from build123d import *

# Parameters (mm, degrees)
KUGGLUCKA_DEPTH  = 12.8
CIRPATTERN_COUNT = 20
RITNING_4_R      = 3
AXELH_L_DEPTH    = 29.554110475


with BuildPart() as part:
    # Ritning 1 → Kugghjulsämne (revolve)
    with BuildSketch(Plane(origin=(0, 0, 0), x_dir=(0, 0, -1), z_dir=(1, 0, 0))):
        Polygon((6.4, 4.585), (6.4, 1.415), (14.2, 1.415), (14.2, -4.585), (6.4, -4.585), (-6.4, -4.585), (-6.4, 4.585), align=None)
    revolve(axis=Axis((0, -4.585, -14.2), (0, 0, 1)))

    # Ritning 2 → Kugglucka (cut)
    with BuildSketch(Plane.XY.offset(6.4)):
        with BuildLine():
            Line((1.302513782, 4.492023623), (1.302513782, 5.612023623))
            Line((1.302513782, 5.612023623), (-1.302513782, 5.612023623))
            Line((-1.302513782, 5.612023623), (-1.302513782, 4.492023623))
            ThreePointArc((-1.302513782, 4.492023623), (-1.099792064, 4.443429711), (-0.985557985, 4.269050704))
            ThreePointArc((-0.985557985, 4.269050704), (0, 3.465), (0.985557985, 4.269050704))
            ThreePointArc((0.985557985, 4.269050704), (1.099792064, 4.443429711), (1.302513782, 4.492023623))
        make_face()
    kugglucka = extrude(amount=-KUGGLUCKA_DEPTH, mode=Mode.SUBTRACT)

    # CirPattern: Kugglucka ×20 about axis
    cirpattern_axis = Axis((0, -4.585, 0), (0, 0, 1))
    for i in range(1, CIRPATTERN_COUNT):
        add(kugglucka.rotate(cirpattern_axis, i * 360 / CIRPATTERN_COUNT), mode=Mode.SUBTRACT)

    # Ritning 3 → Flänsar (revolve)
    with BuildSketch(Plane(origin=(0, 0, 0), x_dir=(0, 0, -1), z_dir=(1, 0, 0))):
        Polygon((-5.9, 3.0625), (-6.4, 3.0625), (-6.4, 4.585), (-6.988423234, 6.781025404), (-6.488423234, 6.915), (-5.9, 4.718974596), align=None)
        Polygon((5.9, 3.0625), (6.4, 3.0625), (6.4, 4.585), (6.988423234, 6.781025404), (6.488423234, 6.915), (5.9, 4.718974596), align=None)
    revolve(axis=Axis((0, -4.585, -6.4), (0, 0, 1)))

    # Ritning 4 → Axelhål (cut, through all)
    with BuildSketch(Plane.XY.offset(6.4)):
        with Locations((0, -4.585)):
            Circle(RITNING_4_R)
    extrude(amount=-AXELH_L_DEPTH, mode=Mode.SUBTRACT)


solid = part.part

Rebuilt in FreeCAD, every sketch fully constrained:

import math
import FreeCAD as App
import Part
import Sketcher
Q = App.Units.Quantity


def add_polygon(sketch, points):
    """Adds a closed chain of lines whose ends are joined by coincident constraints."""
    first, n = sketch.GeometryCount, len(points)
    for a, b in zip(points, points[1:] + points[:1]):
        sketch.addGeometry(Part.LineSegment(App.Vector(*a, 0), App.Vector(*b, 0)), False)
    for i in range(n):
        sketch.addConstraint(Sketcher.Constraint("Coincident", first + i, 2, first + (i + 1) % n, 1))

doc = App.newDocument("Part")
body = doc.addObject("PartDesign::Body", "Body")

sketch1 = body.newObject("Sketcher::SketchObject", "Sketch")
sketch1.AttachmentSupport = (doc.getObject("YZ_Plane"), [""])
sketch1.MapMode = "FlatFace"
add_polygon(sketch1, [(1.4, -6.4), (4.6, -6.4), (4.6, 6.4), (-4.6, 6.4), (-4.6, -14.2), (1.4, -14.2)])
sketch1.addGeometry(Part.LineSegment(App.Vector(-4.6, -14.2, 0), App.Vector(-4.6, 6.4, 0)), True)
sketch1.addConstraint(Sketcher.Constraint("Horizontal", 0))
sketch1.addConstraint(Sketcher.Constraint("Vertical", 1))
sketch1.addConstraint(Sketcher.Constraint("Horizontal", 2))
sketch1.addConstraint(Sketcher.Constraint("Vertical", 3))
sketch1.addConstraint(Sketcher.Constraint("Horizontal", 4))
sketch1.addConstraint(Sketcher.Constraint("Vertical", 5))
sketch1.addConstraint(Sketcher.Constraint("Vertical", 6))
sketch1.addConstraint(Sketcher.Constraint("Coincident", 6, 1, 3, 2))
sketch1.addConstraint(Sketcher.Constraint("Symmetric", 0, 2, 2, 2, -1, 1))
sketch1.addConstraint(Sketcher.Constraint("Horizontal", 1, 2, 6, 2))
sketch1.addConstraint(Sketcher.Constraint("DistanceX", 4, 1, 4, 2, Q("6 mm")))
sketch1.addConstraint(Sketcher.Constraint("DistanceY", 1, 1, 1, 2, Q("12.8 mm")))
sketch1.addConstraint(Sketcher.Constraint("DistanceY", 3, 2, 3, 1, Q("20.6 mm")))
sketch1.addConstraint(Sketcher.Constraint("DistanceX", 0, 1, 0, 2, Q("3.17 mm")))
revolution = body.newObject("PartDesign::Revolution", "Revolution")
revolution.Profile = sketch1
revolution.ReferenceAxis = (sketch1, ["Axis0"])
revolution.Angle = 360

sketch2 = body.newObject("Sketcher::SketchObject", "Sketch001")
sketch2.AttachmentSupport = (doc.getObject("XY_Plane"), [""])
sketch2.MapMode = "FlatFace"
sketch2.AttachmentOffset = App.Placement(App.Vector(0, 0, 6.4), App.Rotation())
sketch2.addGeometry(Part.LineSegment(App.Vector(1.3, 4.49, 0), App.Vector(1.3, 5.61, 0)), False)
sketch2.addGeometry(Part.LineSegment(App.Vector(1.3, 5.61, 0), App.Vector(-1.3, 5.61, 0)), False)
sketch2.addGeometry(Part.LineSegment(App.Vector(-1.3, 5.61, 0), App.Vector(-1.3, 4.49, 0)), False)
sketch2.addGeometry(Part.ArcOfCircle(Part.Circle(App.Vector(-1.26, 4.21, 0), App.Vector(0, 0, 1), 0.28), math.radians(12), math.radians(98)), False)
sketch2.addGeometry(Part.ArcOfCircle(Part.Circle(App.Vector(0, 4.47, 0), App.Vector(0, 0, 1), 1.01), math.radians(-168), math.radians(-12)), False)
sketch2.addGeometry(Part.ArcOfCircle(Part.Circle(App.Vector(1.26, 4.21, 0), App.Vector(0, 0, 1), 0.28), math.radians(82), math.radians(168)), False)
sketch2.addConstraint(Sketcher.Constraint("Coincident", 0, 2, 1, 1))
sketch2.addConstraint(Sketcher.Constraint("Coincident", 1, 2, 2, 1))
sketch2.addConstraint(Sketcher.Constraint("Coincident", 2, 2, 3, 2))
sketch2.addConstraint(Sketcher.Constraint("Tangent", 3, 1, 4, 1))
sketch2.addConstraint(Sketcher.Constraint("Tangent", 4, 2, 5, 2))
sketch2.addConstraint(Sketcher.Constraint("Coincident", 5, 1, 0, 1))
sketch2.addConstraint(Sketcher.Constraint("Vertical", 0))
sketch2.addConstraint(Sketcher.Constraint("Horizontal", 1))
sketch2.addConstraint(Sketcher.Constraint("Vertical", 2))
sketch2.addConstraint(Sketcher.Constraint("Equal", 3, 5))
sketch2.addConstraint(Sketcher.Constraint("Symmetric", 3, 3, 5, 3, -2))
sketch2.addConstraint(Sketcher.Constraint("Horizontal", 2, 2, 5, 1))
sketch2.addConstraint(Sketcher.Constraint("DistanceY", 0, 1, 0, 2, Q("1.12 mm")))
sketch2.addConstraint(Sketcher.Constraint("Radius", 3, Q("0.282573 mm")))
sketch2.addConstraint(Sketcher.Constraint("Radius", 4, Q("1.006045 mm")))
sketch2.addConstraint(Sketcher.Constraint("DistanceX", 1, 2, 1, 1, Q("2.605028 mm")))
sketch2.addConstraint(Sketcher.Constraint("DistanceY", -1, 1, 3, 1, Q("4.269051 mm")))
sketch2.addConstraint(Sketcher.Constraint("DistanceY", 3, 3, 4, 3, Q("0.258729 mm")))
pocket1 = body.newObject("PartDesign::Pocket", "Pocket")
pocket1.Profile = sketch2
pocket1.Length = 12.8
doc.recompute()

datumline = body.newObject("PartDesign::Line", "DatumLine")
datumline.Placement = App.Placement(App.Vector(0, -4.585, 0), App.Rotation(App.Vector(0, 0, 1), App.Vector(0, 0, 1)))
polarpattern = body.newObject("PartDesign::PolarPattern", "PolarPattern")
polarpattern.Originals = [pocket1]
polarpattern.Axis = (datumline, [""])
polarpattern.Angle = 360
polarpattern.Occurrences = 20
body.Tip = polarpattern

sketch3 = body.newObject("Sketcher::SketchObject", "Sketch002")
sketch3.AttachmentSupport = (doc.getObject("YZ_Plane"), [""])
sketch3.MapMode = "FlatFace"
add_polygon(sketch3, [(3.1, 6.4), (3.1, 5.9), (4.7, 5.9), (6.9, 6.5), (6.8, 7), (4.6, 6.4)])
add_polygon(sketch3, [(3.1, -5.9), (3.1, -6.4), (4.6, -6.4), (6.8, -7), (6.9, -6.5), (4.7, -5.9)])
sketch3.addGeometry(Part.LineSegment(App.Vector(-4.6, -7, 0), App.Vector(-4.6, 7, 0)), True)
sketch3.addConstraint(Sketcher.Constraint("Vertical", 0))
sketch3.addConstraint(Sketcher.Constraint("Horizontal", 1))
sketch3.addConstraint(Sketcher.Constraint("Horizontal", 5))
sketch3.addConstraint(Sketcher.Constraint("Vertical", 6))
sketch3.addConstraint(Sketcher.Constraint("Horizontal", 7))
sketch3.addConstraint(Sketcher.Constraint("Horizontal", 11))
sketch3.addConstraint(Sketcher.Constraint("Vertical", 12))
sketch3.addConstraint(Sketcher.Constraint("Symmetric", 5, 2, 6, 2, -1))
sketch3.addConstraint(Sketcher.Constraint("Symmetric", 3, 2, 8, 2, -1))
sketch3.addConstraint(Sketcher.Constraint("Symmetric", 2, 2, 9, 2, -1))
sketch3.addConstraint(Sketcher.Constraint("Symmetric", 1, 2, 10, 2, -1))
sketch3.addConstraint(Sketcher.Constraint("Perpendicular", 2, 3))
sketch3.addConstraint(Sketcher.Constraint("Perpendicular", 3, 4))
sketch3.addConstraint(Sketcher.Constraint("Perpendicular", 8, 9))
sketch3.addConstraint(Sketcher.Constraint("Horizontal", 8, 2, 12, 1))
sketch3.addConstraint(Sketcher.Constraint("Horizontal", 3, 2, 12, 2))
sketch3.addConstraint(Sketcher.Constraint("Equal", 2, 4))
sketch3.addConstraint(Sketcher.Constraint("Angle", 2, Q("15 deg")))
sketch3.addConstraint(Sketcher.Constraint("DistanceY", 0, 2, 0, 1, Q("0.5 mm")))
sketch3.addConstraint(Sketcher.Constraint("DistanceY", -1, 1, 0, 2, Q("5.9 mm")))
sketch3.addConstraint(Sketcher.Constraint("DistanceX", 4, 2, 2, 2, Q("2.33 mm")))
sketch3.addConstraint(Sketcher.Constraint("DistanceX", 12, 1, 7, 2, Q("9.17 mm")))
sketch3.addConstraint(Sketcher.Constraint("DistanceX", 5, 2, 5, 1, Q("1.5225 mm")))
sketch3.addConstraint(Sketcher.Constraint("DistanceX", -1, 1, 2, 2, Q("6.915 mm")))
revolution2 = body.newObject("PartDesign::Revolution", "Revolution001")
revolution2.Profile = sketch3
revolution2.ReferenceAxis = (sketch3, ["Axis0"])
revolution2.Angle = 360

sketch4 = body.newObject("Sketcher::SketchObject", "Sketch003")
sketch4.AttachmentSupport = (doc.getObject("XY_Plane"), [""])
sketch4.MapMode = "FlatFace"
sketch4.AttachmentOffset = App.Placement(App.Vector(0, 0, 6.4), App.Rotation())
sketch4.addGeometry(Part.Circle(App.Vector(0, -4.6, 0), App.Vector(0, 0, 1), 3), False)
sketch4.addConstraint(Sketcher.Constraint("PointOnObject", 0, 3, -2))
sketch4.addConstraint(Sketcher.Constraint("Diameter", 0, Q("6 mm")))
sketch4.addConstraint(Sketcher.Constraint("DistanceY", 0, 3, -1, 1, Q("4.585 mm")))
pocket2 = body.newObject("PartDesign::Pocket", "Pocket001")
pocket2.Profile = sketch4
pocket2.Type = "ThroughAll"

doc.recompute()
